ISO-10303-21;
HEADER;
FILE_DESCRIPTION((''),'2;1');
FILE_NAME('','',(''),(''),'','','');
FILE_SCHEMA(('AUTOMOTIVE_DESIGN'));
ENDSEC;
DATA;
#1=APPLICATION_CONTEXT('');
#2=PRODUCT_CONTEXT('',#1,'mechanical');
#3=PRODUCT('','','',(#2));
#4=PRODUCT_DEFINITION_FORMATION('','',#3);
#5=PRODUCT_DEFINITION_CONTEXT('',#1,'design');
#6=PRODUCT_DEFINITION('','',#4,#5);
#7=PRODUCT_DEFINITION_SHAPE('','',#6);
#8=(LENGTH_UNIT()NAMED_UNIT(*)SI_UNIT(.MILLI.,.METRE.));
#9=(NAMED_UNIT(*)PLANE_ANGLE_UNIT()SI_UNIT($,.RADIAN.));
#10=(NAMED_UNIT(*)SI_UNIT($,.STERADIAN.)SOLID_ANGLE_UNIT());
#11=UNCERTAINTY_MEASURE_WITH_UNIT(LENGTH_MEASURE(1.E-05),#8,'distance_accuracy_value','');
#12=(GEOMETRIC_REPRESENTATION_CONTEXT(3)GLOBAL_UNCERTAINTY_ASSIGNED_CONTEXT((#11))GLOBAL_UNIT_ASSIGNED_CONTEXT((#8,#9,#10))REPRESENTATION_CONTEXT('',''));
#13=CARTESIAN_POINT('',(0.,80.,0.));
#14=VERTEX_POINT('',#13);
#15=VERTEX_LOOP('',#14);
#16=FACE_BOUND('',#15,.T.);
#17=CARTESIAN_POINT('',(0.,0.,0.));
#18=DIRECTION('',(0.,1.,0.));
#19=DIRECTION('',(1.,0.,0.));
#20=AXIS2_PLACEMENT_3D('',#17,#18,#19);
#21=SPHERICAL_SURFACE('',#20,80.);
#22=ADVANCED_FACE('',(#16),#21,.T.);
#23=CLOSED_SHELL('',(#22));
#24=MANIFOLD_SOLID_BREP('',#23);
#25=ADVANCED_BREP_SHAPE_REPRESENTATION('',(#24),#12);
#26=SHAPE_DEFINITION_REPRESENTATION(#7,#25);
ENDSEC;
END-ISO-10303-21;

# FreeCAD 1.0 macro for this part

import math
import FreeCAD as App
import Part
import Sketcher
from FreeCAD import Vector
Q = App.Units.Quantity

doc = App.newDocument("Part")
params = doc.addObject("Spreadsheet::Sheet", "Params")
for row, (alias, value) in enumerate([
    ("sketch1_radius", "80 mm"),
    ("revolution_angle", "360 deg"),
], start=1):
    params.set(f"A{row}", alias)
    params.set(f"B{row}", "=" + value)
    params.setAlias(f"B{row}", alias)

body = doc.addObject("PartDesign::Body", "Body")

# Sketch on XY plane
sketch1 = doc.addObject("Sketcher::SketchObject", "Sketch")
body.addObject(sketch1)
sketch1.AttachmentSupport = (doc.XY_Plane, [""])
sketch1.MapMode = "FlatFace"
sketch1.addGeometry([
    Part.LineSegment(Vector(0, -80, 0), Vector(0, 80, 0)),
    Part.ArcOfCircle(Part.Circle(Vector(0, 0, 0), Vector(0, 0, 1), 80), math.radians(90), math.radians(270)),
], False)
sketch1.addConstraint([
    Sketcher.Constraint("Coincident", 0, 1, 1, 2),
    Sketcher.Constraint("Coincident", 1, 1, 0, 2),
    Sketcher.Constraint("Vertical", 0),
    Sketcher.Constraint("Coincident", 1, 3, -1, 1),
    Sketcher.Constraint("PointOnObject", 0, 1, -2),
    Sketcher.Constraint("Radius", 1, Q("80 mm")),
])
sketch1.setExpression("Constraints[5]", "Params.sketch1_radius")
revolution = doc.addObject("PartDesign::Revolution", "Revolution")
body.addObject(revolution)
revolution.Profile = sketch1
revolution.ReferenceAxis = (sketch1, ["V_Axis"])
revolution.setExpression("Angle", "Params.revolution_angle")

doc.recompute()
